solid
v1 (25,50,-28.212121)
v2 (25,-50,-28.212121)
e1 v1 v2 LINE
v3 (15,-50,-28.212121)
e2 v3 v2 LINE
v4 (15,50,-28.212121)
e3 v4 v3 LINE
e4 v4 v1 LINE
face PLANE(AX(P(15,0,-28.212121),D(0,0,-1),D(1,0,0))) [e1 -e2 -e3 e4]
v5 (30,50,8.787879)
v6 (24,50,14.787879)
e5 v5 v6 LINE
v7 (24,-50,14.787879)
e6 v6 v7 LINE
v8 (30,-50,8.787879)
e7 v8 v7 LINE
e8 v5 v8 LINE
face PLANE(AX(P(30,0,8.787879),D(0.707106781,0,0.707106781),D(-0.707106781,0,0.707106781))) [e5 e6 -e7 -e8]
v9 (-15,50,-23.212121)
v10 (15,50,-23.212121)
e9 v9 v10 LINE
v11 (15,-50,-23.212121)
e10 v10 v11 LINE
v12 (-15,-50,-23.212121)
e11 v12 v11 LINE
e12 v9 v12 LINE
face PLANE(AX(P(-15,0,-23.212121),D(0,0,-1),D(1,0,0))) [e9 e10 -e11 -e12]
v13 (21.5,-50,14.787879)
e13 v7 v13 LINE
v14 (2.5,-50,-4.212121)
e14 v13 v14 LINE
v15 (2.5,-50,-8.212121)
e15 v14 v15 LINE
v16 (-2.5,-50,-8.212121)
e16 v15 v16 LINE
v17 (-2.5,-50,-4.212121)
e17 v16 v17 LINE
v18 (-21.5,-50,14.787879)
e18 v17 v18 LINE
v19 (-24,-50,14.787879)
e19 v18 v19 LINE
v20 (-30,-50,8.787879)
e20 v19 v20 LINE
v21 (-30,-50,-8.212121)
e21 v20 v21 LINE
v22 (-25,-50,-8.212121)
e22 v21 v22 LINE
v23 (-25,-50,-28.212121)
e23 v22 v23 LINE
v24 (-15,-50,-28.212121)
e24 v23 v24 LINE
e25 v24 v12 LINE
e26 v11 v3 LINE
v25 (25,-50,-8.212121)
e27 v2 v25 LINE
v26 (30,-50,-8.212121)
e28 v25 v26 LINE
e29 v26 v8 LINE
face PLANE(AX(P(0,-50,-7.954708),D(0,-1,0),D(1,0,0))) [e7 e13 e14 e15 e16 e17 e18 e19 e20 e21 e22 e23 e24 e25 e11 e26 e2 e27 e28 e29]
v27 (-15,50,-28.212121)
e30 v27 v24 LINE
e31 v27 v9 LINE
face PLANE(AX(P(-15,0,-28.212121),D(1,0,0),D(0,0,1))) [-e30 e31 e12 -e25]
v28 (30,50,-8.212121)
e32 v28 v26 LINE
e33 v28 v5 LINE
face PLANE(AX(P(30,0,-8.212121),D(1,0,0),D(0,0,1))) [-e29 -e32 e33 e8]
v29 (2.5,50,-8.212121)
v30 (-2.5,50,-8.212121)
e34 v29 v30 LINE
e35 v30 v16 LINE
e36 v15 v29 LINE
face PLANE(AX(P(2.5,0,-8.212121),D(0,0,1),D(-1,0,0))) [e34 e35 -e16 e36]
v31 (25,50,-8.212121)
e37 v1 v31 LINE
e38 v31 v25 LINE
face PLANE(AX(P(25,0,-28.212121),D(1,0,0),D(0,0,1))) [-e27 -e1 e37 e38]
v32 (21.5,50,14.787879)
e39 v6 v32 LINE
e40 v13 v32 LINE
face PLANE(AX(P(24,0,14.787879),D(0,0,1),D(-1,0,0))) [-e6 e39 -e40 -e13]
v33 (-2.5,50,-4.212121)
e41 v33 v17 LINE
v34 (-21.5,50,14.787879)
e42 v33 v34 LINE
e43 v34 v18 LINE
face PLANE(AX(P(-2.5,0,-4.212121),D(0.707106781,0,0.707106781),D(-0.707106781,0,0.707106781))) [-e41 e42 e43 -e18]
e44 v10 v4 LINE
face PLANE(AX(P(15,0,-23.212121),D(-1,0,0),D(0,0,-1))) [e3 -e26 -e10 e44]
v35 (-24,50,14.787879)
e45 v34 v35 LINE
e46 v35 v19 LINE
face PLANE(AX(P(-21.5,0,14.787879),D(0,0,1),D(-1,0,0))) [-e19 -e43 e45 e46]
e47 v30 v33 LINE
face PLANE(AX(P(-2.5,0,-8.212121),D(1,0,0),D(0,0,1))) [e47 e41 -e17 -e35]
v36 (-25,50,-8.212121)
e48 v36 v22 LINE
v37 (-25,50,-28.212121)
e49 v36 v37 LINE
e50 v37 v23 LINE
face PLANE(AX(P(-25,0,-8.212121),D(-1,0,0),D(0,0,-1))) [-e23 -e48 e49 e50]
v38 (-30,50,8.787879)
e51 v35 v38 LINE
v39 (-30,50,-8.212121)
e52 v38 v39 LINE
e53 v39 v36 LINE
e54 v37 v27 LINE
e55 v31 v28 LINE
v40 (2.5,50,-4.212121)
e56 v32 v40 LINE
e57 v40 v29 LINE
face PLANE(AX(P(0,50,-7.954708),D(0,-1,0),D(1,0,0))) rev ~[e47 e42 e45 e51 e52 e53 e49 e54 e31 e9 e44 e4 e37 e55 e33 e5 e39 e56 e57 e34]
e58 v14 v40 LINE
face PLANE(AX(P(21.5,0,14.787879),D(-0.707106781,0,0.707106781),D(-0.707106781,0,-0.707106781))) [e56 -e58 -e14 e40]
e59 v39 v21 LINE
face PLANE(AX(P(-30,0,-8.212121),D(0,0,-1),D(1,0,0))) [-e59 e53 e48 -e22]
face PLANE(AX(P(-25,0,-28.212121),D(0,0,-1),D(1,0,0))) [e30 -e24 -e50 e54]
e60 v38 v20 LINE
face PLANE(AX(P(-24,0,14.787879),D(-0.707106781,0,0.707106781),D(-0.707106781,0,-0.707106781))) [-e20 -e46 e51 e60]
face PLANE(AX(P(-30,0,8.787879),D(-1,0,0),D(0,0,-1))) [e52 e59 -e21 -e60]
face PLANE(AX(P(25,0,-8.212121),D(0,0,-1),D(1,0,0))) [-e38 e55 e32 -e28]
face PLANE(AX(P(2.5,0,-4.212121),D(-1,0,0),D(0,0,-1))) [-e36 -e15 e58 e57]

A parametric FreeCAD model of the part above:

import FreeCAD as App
import Part
import Sketcher
from FreeCAD import Vector
Q = App.Units.Quantity

doc = App.newDocument("Part")
params = doc.addObject("Spreadsheet::Sheet", "Params")
for row, (alias, value) in enumerate([
    ("sketch1_width", "5 mm"),
    ("sketch1_width2", "10 mm"),
    ("sketch1_width3", "30 mm"),
    ("sketch1_height", "4 mm"),
    ("sketch1_height2", "17 mm"),
    ("pad1_length", "100 mm"),
], start=1):
    params.set(f"A{row}", alias)
    params.set(f"B{row}", "=" + value)
    params.setAlias(f"B{row}", alias)

body = doc.addObject("PartDesign::Body", "Body")

# Sketch on XZ plane
sketch1 = doc.addObject("Sketcher::SketchObject", "Sketch")
body.addObject(sketch1)
sketch1.AttachmentSupport = (doc.XZ_Plane, [""])
sketch1.MapMode = "FlatFace"
sketch1.addGeometry([
    Part.LineSegment(Vector(2.5, -8.2, 0), Vector(-2.5, -8.2, 0)),  # 0
    Part.LineSegment(Vector(-2.5, -8.2, 0), Vector(-2.5, -4.2, 0)),  # 1
    Part.LineSegment(Vector(-2.5, -4.2, 0), Vector(-21.5, 14.8, 0)),  # 2
    Part.LineSegment(Vector(-21.5, 14.8, 0), Vector(-24, 14.8, 0)),  # 3
    Part.LineSegment(Vector(-24, 14.8, 0), Vector(-30, 8.8, 0)),  # 4
    Part.LineSegment(Vector(-30, 8.8, 0), Vector(-30, -8.2, 0)),  # 5
    Part.LineSegment(Vector(-30, -8.2, 0), Vector(-25, -8.2, 0)),  # 6
    Part.LineSegment(Vector(-25, -8.2, 0), Vector(-25, -28.2, 0)),  # 7
    Part.LineSegment(Vector(-25, -28.2, 0), Vector(-15, -28.2, 0)),  # 8
    Part.LineSegment(Vector(-15, -28.2, 0), Vector(-15, -23.2, 0)),  # 9
    Part.LineSegment(Vector(-15, -23.2, 0), Vector(15, -23.2, 0)),  # 10
    Part.LineSegment(Vector(15, -23.2, 0), Vector(15, -28.2, 0)),  # 11
    Part.LineSegment(Vector(15, -28.2, 0), Vector(25, -28.2, 0)),  # 12
    Part.LineSegment(Vector(25, -28.2, 0), Vector(25, -8.2, 0)),  # 13
    Part.LineSegment(Vector(25, -8.2, 0), Vector(30, -8.2, 0)),  # 14
    Part.LineSegment(Vector(30, -8.2, 0), Vector(30, 8.8, 0)),  # 15
    Part.LineSegment(Vector(30, 8.8, 0), Vector(24, 14.8, 0)),  # 16
    Part.LineSegment(Vector(24, 14.8, 0), Vector(21.5, 14.8, 0)),  # 17
    Part.LineSegment(Vector(21.5, 14.8, 0), Vector(2.5, -4.2, 0)),  # 18
    Part.LineSegment(Vector(2.5, -4.2, 0), Vector(2.5, -8.2, 0)),  # 19
], False)
sketch1.addConstraint([
    Sketcher.Constraint("Coincident", 0, 2, 1, 1),
    Sketcher.Constraint("Coincident", 1, 2, 2, 1),
    Sketcher.Constraint("Coincident", 2, 2, 3, 1),
    Sketcher.Constraint("Coincident", 3, 2, 4, 1),
    Sketcher.Constraint("Coincident", 4, 2, 5, 1),
    Sketcher.Constraint("Coincident", 5, 2, 6, 1),
    Sketcher.Constraint("Coincident", 6, 2, 7, 1),
    Sketcher.Constraint("Coincident", 7, 2, 8, 1),
    Sketcher.Constraint("Coincident", 8, 2, 9, 1),
    Sketcher.Constraint("Coincident", 9, 2, 10, 1),
    Sketcher.Constraint("Coincident", 10, 2, 11, 1),
    Sketcher.Constraint("Coincident", 11, 2, 12, 1),
    Sketcher.Constraint("Coincident", 12, 2, 13, 1),
    Sketcher.Constraint("Coincident", 13, 2, 14, 1),
    Sketcher.Constraint("Coincident", 14, 2, 15, 1),
    Sketcher.Constraint("Coincident", 15, 2, 16, 1),
    Sketcher.Constraint("Coincident", 16, 2, 17, 1),
    Sketcher.Constraint("Coincident", 17, 2, 18, 1),
    Sketcher.Constraint("Coincident", 18, 2, 19, 1),
    Sketcher.Constraint("Coincident", 19, 2, 0, 1),
    Sketcher.Constraint("Horizontal", 0),
    Sketcher.Constraint("Vertical", 1),
    Sketcher.Constraint("Horizontal", 3),
    Sketcher.Constraint("Vertical", 5),
    Sketcher.Constraint("Horizontal", 6),
    Sketcher.Constraint("Vertical", 7),
    Sketcher.Constraint("Horizontal", 8),
    Sketcher.Constraint("Vertical", 9),
    Sketcher.Constraint("Horizontal", 10),
    Sketcher.Constraint("Vertical", 11),
    Sketcher.Constraint("Horizontal", 12),
    Sketcher.Constraint("Vertical", 13),
    Sketcher.Constraint("Horizontal", 14),
    Sketcher.Constraint("Vertical", 15),
    Sketcher.Constraint("Horizontal", 17),
    Sketcher.Constraint("Vertical", 19),
    Sketcher.Constraint("Symmetric", 8, 2, 11, 2, -2),
    Sketcher.Constraint("Symmetric", 6, 2, 13, 2, -2),
    Sketcher.Constraint("Symmetric", 4, 2, 15, 2, -2),
    Sketcher.Constraint("Symmetric", 3, 2, 16, 2, -2),
    Sketcher.Constraint("Symmetric", 1, 2, 18, 2, -2),
    Sketcher.Constraint("Perpendicular", 2, 4),
    Sketcher.Constraint("Perpendicular", 4, 16),
    Sketcher.Constraint("Perpendicular", 16, 18),
    Sketcher.Constraint("Horizontal", 0, 2, 5, 2),
    Sketcher.Constraint("Equal", 0, 6),
    Sketcher.Constraint("Equal", 14, 9),
    Sketcher.Constraint("DistanceX", 0, 2, 0, 1, Q("5 mm")),
    Sketcher.Constraint("DistanceX", 8, 1, 8, 2, Q("10 mm")),
    Sketcher.Constraint("DistanceX", 10, 1, 10, 2, Q("30 mm")),
    Sketcher.Constraint("DistanceY", 1, 1, 1, 2, Q("4 mm")),
    Sketcher.Constraint("DistanceY", 5, 2, 5, 1, Q("17 mm")),
    Sketcher.Constraint("DistanceY", 7, 2, 7, 1, Q("20 mm")),
    Sketcher.Constraint("DistanceX", 3, 2, 3, 1, Q("2.5 mm")),
    Sketcher.Constraint("DistanceY", 0, 2, -1, 1, Q("8.212121 mm")),
])
sketch1.setExpression("Constraints[47]", "Params.sketch1_width")
sketch1.setExpression("Constraints[48]", "Params.sketch1_width2")
sketch1.setExpression("Constraints[49]", "Params.sketch1_width3")
sketch1.setExpression("Constraints[50]", "Params.sketch1_height")
sketch1.setExpression("Constraints[51]", "Params.sketch1_height2")
pad1 = doc.addObject("PartDesign::Pad", "Pad")
body.addObject(pad1)
pad1.Profile = sketch1
pad1.setExpression("Length", "Params.pad1_length")
pad1.Midplane = True

doc.recompute()
